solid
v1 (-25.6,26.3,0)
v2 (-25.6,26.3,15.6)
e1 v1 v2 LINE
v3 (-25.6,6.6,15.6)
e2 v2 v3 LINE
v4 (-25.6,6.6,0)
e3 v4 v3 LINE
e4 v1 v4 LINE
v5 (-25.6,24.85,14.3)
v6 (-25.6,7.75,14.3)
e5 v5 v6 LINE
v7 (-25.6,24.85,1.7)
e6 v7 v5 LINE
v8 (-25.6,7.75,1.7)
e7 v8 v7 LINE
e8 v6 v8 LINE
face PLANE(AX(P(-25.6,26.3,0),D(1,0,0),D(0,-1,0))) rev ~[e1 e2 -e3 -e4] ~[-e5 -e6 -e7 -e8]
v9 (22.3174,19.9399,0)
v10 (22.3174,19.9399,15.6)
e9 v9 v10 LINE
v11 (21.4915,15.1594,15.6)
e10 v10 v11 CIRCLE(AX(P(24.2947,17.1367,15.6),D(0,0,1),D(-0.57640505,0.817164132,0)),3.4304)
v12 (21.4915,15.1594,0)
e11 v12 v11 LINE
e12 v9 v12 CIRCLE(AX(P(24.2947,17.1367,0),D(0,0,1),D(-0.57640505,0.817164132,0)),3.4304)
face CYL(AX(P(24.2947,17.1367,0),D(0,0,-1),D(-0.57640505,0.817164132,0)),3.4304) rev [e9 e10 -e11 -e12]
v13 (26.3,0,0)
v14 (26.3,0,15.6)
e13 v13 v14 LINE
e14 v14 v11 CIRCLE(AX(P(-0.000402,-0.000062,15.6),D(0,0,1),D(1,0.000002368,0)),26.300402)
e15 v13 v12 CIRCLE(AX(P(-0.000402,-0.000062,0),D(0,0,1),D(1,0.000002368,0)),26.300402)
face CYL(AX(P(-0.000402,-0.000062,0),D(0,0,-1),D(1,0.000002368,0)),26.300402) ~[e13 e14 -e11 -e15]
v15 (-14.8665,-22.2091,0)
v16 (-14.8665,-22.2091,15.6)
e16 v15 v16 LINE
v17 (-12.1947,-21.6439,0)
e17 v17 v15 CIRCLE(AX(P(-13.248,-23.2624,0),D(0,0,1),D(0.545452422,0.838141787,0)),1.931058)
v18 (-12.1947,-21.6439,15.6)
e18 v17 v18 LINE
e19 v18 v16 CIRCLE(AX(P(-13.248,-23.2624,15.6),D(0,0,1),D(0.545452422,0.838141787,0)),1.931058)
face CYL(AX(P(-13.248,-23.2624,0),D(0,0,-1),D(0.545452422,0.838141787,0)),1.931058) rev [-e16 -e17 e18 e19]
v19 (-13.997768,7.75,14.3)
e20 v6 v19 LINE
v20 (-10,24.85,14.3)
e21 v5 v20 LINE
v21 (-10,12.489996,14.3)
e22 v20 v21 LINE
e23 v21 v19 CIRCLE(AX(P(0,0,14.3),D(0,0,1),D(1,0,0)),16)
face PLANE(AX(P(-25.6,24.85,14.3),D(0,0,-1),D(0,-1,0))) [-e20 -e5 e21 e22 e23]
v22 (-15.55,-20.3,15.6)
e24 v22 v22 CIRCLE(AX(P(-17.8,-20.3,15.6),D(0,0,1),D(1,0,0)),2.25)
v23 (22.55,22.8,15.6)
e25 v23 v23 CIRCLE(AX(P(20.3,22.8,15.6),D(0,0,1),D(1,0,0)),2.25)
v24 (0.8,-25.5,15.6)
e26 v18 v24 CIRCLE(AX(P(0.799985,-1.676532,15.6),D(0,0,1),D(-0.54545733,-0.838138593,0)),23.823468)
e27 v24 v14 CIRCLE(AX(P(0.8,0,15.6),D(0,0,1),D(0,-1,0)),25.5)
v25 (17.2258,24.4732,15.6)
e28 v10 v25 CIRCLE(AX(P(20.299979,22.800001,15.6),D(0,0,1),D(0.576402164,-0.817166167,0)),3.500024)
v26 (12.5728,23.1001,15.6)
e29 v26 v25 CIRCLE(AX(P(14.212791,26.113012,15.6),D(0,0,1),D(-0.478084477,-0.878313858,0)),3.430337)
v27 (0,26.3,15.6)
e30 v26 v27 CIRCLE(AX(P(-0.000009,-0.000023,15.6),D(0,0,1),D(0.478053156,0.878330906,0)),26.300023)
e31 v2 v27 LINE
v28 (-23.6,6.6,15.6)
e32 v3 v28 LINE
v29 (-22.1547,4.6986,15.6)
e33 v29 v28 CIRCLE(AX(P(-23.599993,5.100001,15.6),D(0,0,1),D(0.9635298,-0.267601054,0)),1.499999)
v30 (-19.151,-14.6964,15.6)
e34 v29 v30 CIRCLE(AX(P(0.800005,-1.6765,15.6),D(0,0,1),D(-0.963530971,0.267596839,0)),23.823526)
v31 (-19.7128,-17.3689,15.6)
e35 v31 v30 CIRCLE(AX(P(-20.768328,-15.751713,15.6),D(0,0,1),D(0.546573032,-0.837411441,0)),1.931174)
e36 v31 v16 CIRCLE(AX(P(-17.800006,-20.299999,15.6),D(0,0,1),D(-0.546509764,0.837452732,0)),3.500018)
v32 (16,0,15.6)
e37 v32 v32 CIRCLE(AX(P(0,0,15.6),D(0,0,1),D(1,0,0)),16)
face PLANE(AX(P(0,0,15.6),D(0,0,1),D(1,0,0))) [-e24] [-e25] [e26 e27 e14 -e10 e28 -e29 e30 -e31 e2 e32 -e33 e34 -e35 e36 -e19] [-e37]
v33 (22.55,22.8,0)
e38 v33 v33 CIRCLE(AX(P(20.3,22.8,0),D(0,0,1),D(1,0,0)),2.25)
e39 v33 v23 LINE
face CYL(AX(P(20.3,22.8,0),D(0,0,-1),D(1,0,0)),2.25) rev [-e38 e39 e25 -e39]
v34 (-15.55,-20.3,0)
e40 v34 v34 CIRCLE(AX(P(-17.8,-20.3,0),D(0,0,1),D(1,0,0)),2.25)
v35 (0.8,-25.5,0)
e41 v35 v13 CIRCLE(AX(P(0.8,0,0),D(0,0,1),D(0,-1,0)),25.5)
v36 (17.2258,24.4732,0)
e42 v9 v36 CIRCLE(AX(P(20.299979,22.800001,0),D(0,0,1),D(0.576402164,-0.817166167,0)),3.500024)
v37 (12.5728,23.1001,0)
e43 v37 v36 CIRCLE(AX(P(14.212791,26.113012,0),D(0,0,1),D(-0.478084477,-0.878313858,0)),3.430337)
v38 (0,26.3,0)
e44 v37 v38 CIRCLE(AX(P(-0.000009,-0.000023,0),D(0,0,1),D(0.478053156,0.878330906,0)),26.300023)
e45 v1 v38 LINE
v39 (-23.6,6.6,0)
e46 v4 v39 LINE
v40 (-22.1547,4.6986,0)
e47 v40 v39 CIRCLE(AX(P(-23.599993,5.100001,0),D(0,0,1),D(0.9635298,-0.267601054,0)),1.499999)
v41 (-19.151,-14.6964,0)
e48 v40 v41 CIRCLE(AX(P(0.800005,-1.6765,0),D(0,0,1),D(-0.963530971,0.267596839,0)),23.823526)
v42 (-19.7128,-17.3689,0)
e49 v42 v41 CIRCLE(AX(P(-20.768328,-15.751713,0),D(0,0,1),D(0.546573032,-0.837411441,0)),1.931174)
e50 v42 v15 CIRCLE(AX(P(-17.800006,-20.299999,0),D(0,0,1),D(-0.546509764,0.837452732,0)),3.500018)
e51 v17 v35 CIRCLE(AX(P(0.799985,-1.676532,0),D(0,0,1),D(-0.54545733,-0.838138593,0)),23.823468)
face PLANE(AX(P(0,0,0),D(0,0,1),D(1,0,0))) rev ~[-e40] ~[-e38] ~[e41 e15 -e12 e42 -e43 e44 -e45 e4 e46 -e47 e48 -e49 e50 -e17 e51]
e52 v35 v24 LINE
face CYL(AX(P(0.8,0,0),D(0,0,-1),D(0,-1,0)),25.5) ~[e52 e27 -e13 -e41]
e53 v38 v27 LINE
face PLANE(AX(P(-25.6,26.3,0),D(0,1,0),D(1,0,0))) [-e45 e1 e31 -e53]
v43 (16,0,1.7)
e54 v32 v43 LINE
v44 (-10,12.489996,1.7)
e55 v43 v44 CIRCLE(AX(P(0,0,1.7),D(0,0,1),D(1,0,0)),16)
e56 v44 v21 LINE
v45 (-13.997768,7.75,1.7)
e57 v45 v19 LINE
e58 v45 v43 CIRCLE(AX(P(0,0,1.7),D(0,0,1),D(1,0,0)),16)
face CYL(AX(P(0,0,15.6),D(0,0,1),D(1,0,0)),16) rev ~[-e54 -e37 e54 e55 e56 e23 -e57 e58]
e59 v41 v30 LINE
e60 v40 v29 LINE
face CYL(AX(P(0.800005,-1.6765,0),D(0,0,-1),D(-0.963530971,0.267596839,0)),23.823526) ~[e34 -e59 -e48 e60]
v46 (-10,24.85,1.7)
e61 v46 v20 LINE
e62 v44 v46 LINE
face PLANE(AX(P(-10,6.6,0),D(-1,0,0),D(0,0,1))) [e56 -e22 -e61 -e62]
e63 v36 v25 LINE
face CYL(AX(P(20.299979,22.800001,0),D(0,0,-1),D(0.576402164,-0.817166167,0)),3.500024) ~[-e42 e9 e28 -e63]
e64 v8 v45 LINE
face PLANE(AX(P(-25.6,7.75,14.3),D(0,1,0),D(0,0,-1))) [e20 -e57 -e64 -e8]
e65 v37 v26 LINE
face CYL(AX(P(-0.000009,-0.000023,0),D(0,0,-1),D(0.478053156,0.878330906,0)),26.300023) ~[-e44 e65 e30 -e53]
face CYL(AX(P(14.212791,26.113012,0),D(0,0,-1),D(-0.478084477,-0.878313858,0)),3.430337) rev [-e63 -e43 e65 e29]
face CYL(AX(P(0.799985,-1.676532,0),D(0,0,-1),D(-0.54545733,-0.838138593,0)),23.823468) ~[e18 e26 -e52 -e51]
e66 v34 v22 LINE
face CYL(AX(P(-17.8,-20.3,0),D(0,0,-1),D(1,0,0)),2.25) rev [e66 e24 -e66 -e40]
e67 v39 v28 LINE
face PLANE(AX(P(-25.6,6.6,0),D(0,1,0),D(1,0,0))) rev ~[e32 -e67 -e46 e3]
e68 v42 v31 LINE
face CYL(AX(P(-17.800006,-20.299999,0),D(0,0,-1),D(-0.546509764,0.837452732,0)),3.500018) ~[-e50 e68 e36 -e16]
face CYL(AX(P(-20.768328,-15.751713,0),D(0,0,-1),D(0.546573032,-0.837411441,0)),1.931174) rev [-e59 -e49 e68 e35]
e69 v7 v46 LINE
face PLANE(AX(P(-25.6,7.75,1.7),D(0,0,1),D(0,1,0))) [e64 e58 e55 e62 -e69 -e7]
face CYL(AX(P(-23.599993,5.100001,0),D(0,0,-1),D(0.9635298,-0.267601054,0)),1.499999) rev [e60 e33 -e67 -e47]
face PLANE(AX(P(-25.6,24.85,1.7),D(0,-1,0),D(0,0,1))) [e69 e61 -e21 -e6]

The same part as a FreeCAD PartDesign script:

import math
import FreeCAD as App
import Part
import Sketcher

V = App.Vector
Q = App.Units.Quantity


def add_polygon(sketch, points):
    """Adds a closed chain of lines whose ends are joined by coincident constraints."""
    first, n = sketch.GeometryCount, len(points)
    for a, b in zip(points, points[1:] + points[:1]):
        sketch.addGeometry(Part.LineSegment(App.Vector(*a, 0), App.Vector(*b, 0)), False)
    for i in range(n):
        sketch.addConstraint(Sketcher.Constraint("Coincident", first + i, 2, first + (i + 1) % n, 1))

doc = App.newDocument("Part")
body = doc.addObject("PartDesign::Body", "Body")

sketch1 = doc.addObject("Sketcher::SketchObject", "Sketch")
body.addObject(sketch1)
sketch1.AttachmentSupport = (doc.XY_Plane, [""])
sketch1.MapMode = "FlatFace"
sketch1.addGeometry([
    Part.LineSegment(V(0, 26.3, 0), V(-25.6, 26.3, 0)),
    Part.LineSegment(V(-25.6, 26.3, 0), V(-25.6, 6.6, 0)),
    Part.LineSegment(V(-25.6, 6.6, 0), V(-23.6, 6.6, 0)),
    Part.ArcOfCircle(Part.Circle(V(-23.6, 5.1, 0), V(0, 0, 1), 1.5), math.radians(-16), math.radians(90)),
    Part.ArcOfCircle(Part.Circle(V(0.8, -1.7, 0), V(0, 0, 1), 23.8), math.radians(164), math.radians(213)),
    Part.ArcOfCircle(Part.Circle(V(-20.8, -15.8, 0), V(0, 0, 1), 1.9), math.radians(-57), math.radians(33)),
    Part.ArcOfCircle(Part.Circle(V(-17.8, -20.3, 0), V(0, 0, 1), 3.5), math.radians(123), math.radians(327)),
    Part.ArcOfCircle(Part.Circle(V(-13.2, -23.3, 0), V(0, 0, 1), 1.9), math.radians(57), math.radians(147)),
    Part.ArcOfCircle(Part.Circle(V(0.8, -1.7, 0), V(0, 0, 1), 23.8), math.radians(-123), math.radians(-90)),
    Part.ArcOfCircle(Part.Circle(V(0.8, 0, 0), V(0, 0, 1), 25.5), math.radians(-90), math.radians(0)),
    Part.ArcOfCircle(Part.Circle(V(0, 0, 0), V(0, 0, 1), 26.3), math.radians(0), math.radians(35)),
    Part.ArcOfCircle(Part.Circle(V(24.3, 17.1, 0), V(0, 0, 1), 3.4), math.radians(125), math.radians(215)),
    Part.ArcOfCircle(Part.Circle(V(20.3, 22.8, 0), V(0, 0, 1), 3.5), math.radians(-55), math.radians(151)),
    Part.ArcOfCircle(Part.Circle(V(14.2, 26.1, 0), V(0, 0, 1), 3.4), math.radians(-119), math.radians(-29)),
    Part.ArcOfCircle(Part.Circle(V(0, 0, 0), V(0, 0, 1), 26.3), math.radians(61), math.radians(90)),
    Part.Circle(V(-17.8, -20.3, 0), V(0, 0, 1), 2.2),
    Part.Circle(V(20.3, 22.8, 0), V(0, 0, 1), 2.2),
], False)
sketch1.addConstraint([
    Sketcher.Constraint("Coincident", 0, 2, 1, 1),
    Sketcher.Constraint("Coincident", 1, 2, 2, 1),
    Sketcher.Constraint("Tangent", 2, 2, 3, 2),
    Sketcher.Constraint("Tangent", 3, 1, 4, 1),
    Sketcher.Constraint("Tangent", 4, 2, 5, 2),
    Sketcher.Constraint("Tangent", 5, 1, 6, 1),
    Sketcher.Constraint("Tangent", 6, 2, 7, 2),
    Sketcher.Constraint("Tangent", 7, 1, 8, 1),
    Sketcher.Constraint("Tangent", 8, 2, 9, 1),
    Sketcher.Constraint("Tangent", 9, 2, 10, 1),
    Sketcher.Constraint("Tangent", 10, 2, 11, 2),
    Sketcher.Constraint("Tangent", 11, 1, 12, 1),
    Sketcher.Constraint("Tangent", 12, 2, 13, 2),
    Sketcher.Constraint("Tangent", 13, 1, 14, 1),
    Sketcher.Constraint("Tangent", 14, 2, 0, 1),
    Sketcher.Constraint("Horizontal", 0),
    Sketcher.Constraint("Vertical", 1),
    Sketcher.Constraint("Horizontal", 2),
    Sketcher.Constraint("Coincident", 10, 3, -1, 1),
    Sketcher.Constraint("Coincident", 14, 3, -1, 1),
    Sketcher.Constraint("Coincident", 8, 3, 4, 3),
    Sketcher.Constraint("Coincident", 15, 3, 6, 3),
    Sketcher.Constraint("Coincident", 16, 3, 12, 3),
    Sketcher.Constraint("Equal", 5, 7),
    Sketcher.Constraint("Equal", 4, 8),
    Sketcher.Constraint("Equal", 6, 12),
    Sketcher.Constraint("Equal", 11, 13),
    Sketcher.Constraint("Equal", 10, 14),
    Sketcher.Constraint("Equal", 15, 16),
    Sketcher.Constraint("PointOnObject", 9, 3, -1),
    Sketcher.Constraint("Vertical", 8, 3, 9, 3),
    Sketcher.Constraint("Diameter", 15, Q("4.5 mm")),
    Sketcher.Constraint("Radius", 3, Q("1.5 mm")),
    Sketcher.Constraint("Radius", 10, Q("26.3 mm")),
    Sketcher.Constraint("DistanceX", 2, 1, 2, 2, Q("2 mm")),
    Sketcher.Constraint("DistanceX", 0, 2, 0, 1, Q("25.6 mm")),
    Sketcher.Constraint("DistanceY", 1, 2, 1, 1, Q("19.7 mm")),
    Sketcher.Constraint("DistanceX", 6, 3, -1, 1, Q("17.8 mm")),
    Sketcher.Constraint("DistanceY", 6, 3, -1, 1, Q("20.3 mm")),
    Sketcher.Constraint("DistanceX", -1, 1, 12, 3, Q("20.3 mm")),
    Sketcher.Constraint("DistanceY", -1, 1, 12, 3, Q("22.8 mm")),
    Sketcher.Constraint("Radius", 6, Q("3.5 mm")),
    Sketcher.Constraint("Radius", 9, Q("25.5 mm")),
    Sketcher.Constraint("Radius", 5, Q("1.931 mm")),
    Sketcher.Constraint("DistanceY", -1, 1, 13, 1, Q("23.1 mm")),
])
pad1 = doc.addObject("PartDesign::Pad", "Pad")
body.addObject(pad1)
pad1.Profile = sketch1
pad1.Length = 15.6

sketch2 = doc.addObject("Sketcher::SketchObject", "Sketch001")
body.addObject(sketch2)
sketch2.AttachmentSupport = (doc.YZ_Plane, [""])
sketch2.MapMode = "FlatFace"
sketch2.AttachmentOffset = App.Placement(V(0, 0, -25.6), App.Rotation())
add_polygon(sketch2, [(25, 14), (25, 2), (8, 2), (8, 14)])
sketch2.addConstraint([
    Sketcher.Constraint("Vertical", 0),
    Sketcher.Constraint("Horizontal", 1),
    Sketcher.Constraint("Vertical", 2),
    Sketcher.Constraint("Horizontal", 3),
    Sketcher.Constraint("DistanceX", 1, 2, 1, 1, Q("17.1 mm")),
    Sketcher.Constraint("DistanceY", 0, 2, 0, 1, Q("12.6 mm")),
    Sketcher.Constraint("DistanceY", -1, 1, 0, 2, Q("1.7 mm")),
    Sketcher.Constraint("DistanceX", -1, 1, 0, 2, Q("24.85 mm")),
])
pocket1 = doc.addObject("PartDesign::Pocket", "Pocket")
body.addObject(pocket1)
pocket1.Profile = sketch2
pocket1.Length = 15.6
pocket1.Reversed = True

sketch3 = doc.addObject("Sketcher::SketchObject", "Sketch002")
body.addObject(sketch3)
sketch3.AttachmentSupport = (doc.XY_Plane, [""])
sketch3.MapMode = "FlatFace"
sketch3.AttachmentOffset = App.Placement(V(0, 0, 15.6), App.Rotation())
sketch3.addGeometry(Part.Circle(V(0, 0, 0), V(0, 0, 1), 16), False)
sketch3.addConstraint([
    Sketcher.Constraint("Coincident", 0, 3, -1, 1),
    Sketcher.Constraint("Diameter", 0, Q("32 mm")),
])
pocket2 = doc.addObject("PartDesign::Pocket", "Pocket001")
body.addObject(pocket2)
pocket2.Profile = sketch3
pocket2.Length = 13.9

doc.recompute()
